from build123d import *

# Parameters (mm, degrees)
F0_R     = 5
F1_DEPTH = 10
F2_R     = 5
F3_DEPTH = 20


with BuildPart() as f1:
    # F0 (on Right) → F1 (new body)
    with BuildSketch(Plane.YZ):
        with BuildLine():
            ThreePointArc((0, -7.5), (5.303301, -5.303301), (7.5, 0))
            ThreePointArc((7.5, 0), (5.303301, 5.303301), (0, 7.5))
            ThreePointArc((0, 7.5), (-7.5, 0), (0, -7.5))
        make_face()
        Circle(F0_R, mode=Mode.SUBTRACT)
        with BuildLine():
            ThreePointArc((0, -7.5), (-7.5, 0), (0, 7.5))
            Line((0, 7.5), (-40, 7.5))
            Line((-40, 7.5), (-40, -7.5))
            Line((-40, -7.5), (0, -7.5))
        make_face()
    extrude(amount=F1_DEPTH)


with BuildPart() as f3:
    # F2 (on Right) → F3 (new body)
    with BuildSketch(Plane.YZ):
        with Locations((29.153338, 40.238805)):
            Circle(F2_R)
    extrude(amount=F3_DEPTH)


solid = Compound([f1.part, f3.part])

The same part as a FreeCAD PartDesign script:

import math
import FreeCAD as App
import Part
import Sketcher
Q = App.Units.Quantity

doc = App.newDocument("Part")
params = doc.addObject("Spreadsheet::Sheet", "Params")
for row, (alias, value) in enumerate([
    ("sketch1_diameter", "10 mm"),
    ("sketch1_radius", "7.5 mm"),
    ("sketch1_width", "40 mm"),
    ("pad1_length", "10 mm"),
    ("sketch2_diameter", "10 mm"),
    ("pad2_length", "20 mm"),
], start=1):
    params.set(f"A{row}", alias)
    params.set(f"B{row}", "=" + value)
    params.setAlias(f"B{row}", alias)

body = doc.addObject("PartDesign::Body", "Body")

# Sketch on YZ plane
sketch1 = doc.addObject("Sketcher::SketchObject", "Sketch")
body.addObject(sketch1)
sketch1.AttachmentSupport = (doc.YZ_Plane, [""])
sketch1.MapMode = "FlatFace"
sketch1.addGeometry(Part.ArcOfCircle(Part.Circle(App.Vector(0, 0, 0), App.Vector(0, 0, 1), 7), math.radians(-90), math.radians(0)), False)
sketch1.addGeometry(Part.ArcOfCircle(Part.Circle(App.Vector(0, 0, 0), App.Vector(0, 0, 1), 7), math.radians(0), math.radians(90)), False)
sketch1.addGeometry(Part.LineSegment(App.Vector(0, 8, 0), App.Vector(-40, 8, 0)), False)
sketch1.addGeometry(Part.LineSegment(App.Vector(-40, 8, 0), App.Vector(-40, -8, 0)), False)
sketch1.addGeometry(Part.LineSegment(App.Vector(-40, -8, 0), App.Vector(0, -8, 0)), False)
sketch1.addGeometry(Part.Circle(App.Vector(0, 0, 0), App.Vector(0, 0, 1), 5), False)
sketch1.addConstraint(Sketcher.Constraint("Tangent", 0, 2, 1, 1))
sketch1.addConstraint(Sketcher.Constraint("Tangent", 1, 2, 2, 1))
sketch1.addConstraint(Sketcher.Constraint("Coincident", 2, 2, 3, 1))
sketch1.addConstraint(Sketcher.Constraint("Coincident", 3, 2, 4, 1))
sketch1.addConstraint(Sketcher.Constraint("Tangent", 4, 2, 0, 1))
sketch1.addConstraint(Sketcher.Constraint("Horizontal", 2))
sketch1.addConstraint(Sketcher.Constraint("Vertical", 3))
sketch1.addConstraint(Sketcher.Constraint("Horizontal", 4))
sketch1.addConstraint(Sketcher.Constraint("Coincident", 0, 3, -1, 1))
sketch1.addConstraint(Sketcher.Constraint("Coincident", 5, 3, -1, 1))
sketch1.addConstraint(Sketcher.Constraint("Equal", 0, 1))
sketch1.addConstraint(Sketcher.Constraint("PointOnObject", 0, 2, -1))
sketch1.addConstraint(Sketcher.Constraint("Diameter", 5, Q("10 mm")))
sketch1.addConstraint(Sketcher.Constraint("Radius", 0, Q("7.5 mm")))
sketch1.addConstraint(Sketcher.Constraint("DistanceX", 2, 2, 2, 1, Q("40 mm")))
sketch1.setExpression("Constraints[12]", "Params.sketch1_diameter")
sketch1.setExpression("Constraints[13]", "Params.sketch1_radius")
sketch1.setExpression("Constraints[14]", "Params.sketch1_width")
pad1 = doc.addObject("PartDesign::Pad", "Pad")
body.addObject(pad1)
pad1.Profile = sketch1
pad1.setExpression("Length", "Params.pad1_length")
body2 = doc.addObject("PartDesign::Body", "Body001")

# Sketch on YZ plane
sketch2 = doc.addObject("Sketcher::SketchObject", "Sketch001")
body2.addObject(sketch2)
sketch2.AttachmentSupport = (doc.getObject("YZ_Plane001"), [""])
sketch2.MapMode = "FlatFace"
sketch2.addGeometry(Part.Circle(App.Vector(29, 40, 0), App.Vector(0, 0, 1), 5), False)
sketch2.addConstraint(Sketcher.Constraint("Diameter", 0, Q("10 mm")))
sketch2.addConstraint(Sketcher.Constraint("DistanceX", -1, 1, 0, 3, Q("29.153338 mm")))
sketch2.addConstraint(Sketcher.Constraint("DistanceY", -1, 1, 0, 3, Q("40.238805 mm")))
sketch2.setExpression("Constraints[0]", "Params.sketch2_diameter")
pad2 = doc.addObject("PartDesign::Pad", "Pad001")
body2.addObject(pad2)
pad2.Profile = sketch2
pad2.setExpression("Length", "Params.pad2_length")

doc.recompute()
